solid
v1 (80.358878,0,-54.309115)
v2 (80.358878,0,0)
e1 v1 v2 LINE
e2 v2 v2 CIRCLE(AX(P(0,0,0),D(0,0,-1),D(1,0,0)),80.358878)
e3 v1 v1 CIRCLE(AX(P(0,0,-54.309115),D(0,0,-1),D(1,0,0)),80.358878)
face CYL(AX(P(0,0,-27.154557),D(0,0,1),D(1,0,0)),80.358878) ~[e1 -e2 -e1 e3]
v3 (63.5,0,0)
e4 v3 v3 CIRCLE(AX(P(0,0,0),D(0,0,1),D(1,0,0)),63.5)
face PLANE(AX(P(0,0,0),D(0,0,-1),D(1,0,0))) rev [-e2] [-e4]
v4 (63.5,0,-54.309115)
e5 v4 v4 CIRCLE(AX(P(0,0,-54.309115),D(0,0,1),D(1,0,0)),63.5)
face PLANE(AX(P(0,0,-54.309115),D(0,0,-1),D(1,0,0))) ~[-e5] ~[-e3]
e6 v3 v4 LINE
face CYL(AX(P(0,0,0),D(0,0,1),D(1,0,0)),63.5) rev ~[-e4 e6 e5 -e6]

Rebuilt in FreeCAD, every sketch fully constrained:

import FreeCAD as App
import Part
import Sketcher

V = App.Vector
Q = App.Units.Quantity


def add_polygon(sketch, points):
    """Adds a closed chain of lines whose ends are joined by coincident constraints."""
    first, n = sketch.GeometryCount, len(points)
    for a, b in zip(points, points[1:] + points[:1]):
        sketch.addGeometry(Part.LineSegment(App.Vector(*a, 0), App.Vector(*b, 0)), False)
    for i in range(n):
        sketch.addConstraint(Sketcher.Constraint("Coincident", first + i, 2, first + (i + 1) % n, 1))

doc = App.newDocument("Part")
body = doc.addObject("PartDesign::Body", "Body")

# Sketch on XZ plane
sketch1 = body.newObject("Sketcher::SketchObject", "Sketch")
sketch1.AttachmentSupport = (doc.getObject("XZ_Plane"), [""])
sketch1.MapMode = "FlatFace"
add_polygon(sketch1, [(0, 0), (0, -54.309115), (80.358878, -54.309115), (80.358878, 0)])  # lines 0-3
sketch1.addConstraint([
    Sketcher.Constraint("Vertical", 0),
    Sketcher.Constraint("Horizontal", 1),
    Sketcher.Constraint("Vertical", 2),
    Sketcher.Constraint("Horizontal", 3),
    Sketcher.Constraint("Coincident", 3, 2, -1, 1),
    Sketcher.Constraint("DistanceX", 1, 1, 1, 2, 80.358878),
    Sketcher.Constraint("DistanceY", 0, 2, 0, 1, 54.309115),
])
revolution = body.newObject("PartDesign::Revolution", "Revolution")
revolution.Profile = sketch1
revolution.ReferenceAxis = (sketch1, ["V_Axis"])
revolution.Angle = 360

# Sketch on XY plane
sketch2 = body.newObject("Sketcher::SketchObject", "Sketch001")
sketch2.AttachmentSupport = (doc.getObject("XY_Plane"), [""])
sketch2.MapMode = "FlatFace"
sketch2.addGeometry(Part.Circle(V(0, 0, 0), V(0, 0, 1), 63.5), False)
sketch2.addConstraint([
    Sketcher.Constraint("Coincident", 0, 3, -1, 1),
    Sketcher.Constraint("Diameter", 0, Q("5 in")),
])
pocket1 = body.newObject("PartDesign::Pocket", "Pocket")
pocket1.Profile = sketch2
pocket1.Type = "ThroughAll"

doc.recompute()
